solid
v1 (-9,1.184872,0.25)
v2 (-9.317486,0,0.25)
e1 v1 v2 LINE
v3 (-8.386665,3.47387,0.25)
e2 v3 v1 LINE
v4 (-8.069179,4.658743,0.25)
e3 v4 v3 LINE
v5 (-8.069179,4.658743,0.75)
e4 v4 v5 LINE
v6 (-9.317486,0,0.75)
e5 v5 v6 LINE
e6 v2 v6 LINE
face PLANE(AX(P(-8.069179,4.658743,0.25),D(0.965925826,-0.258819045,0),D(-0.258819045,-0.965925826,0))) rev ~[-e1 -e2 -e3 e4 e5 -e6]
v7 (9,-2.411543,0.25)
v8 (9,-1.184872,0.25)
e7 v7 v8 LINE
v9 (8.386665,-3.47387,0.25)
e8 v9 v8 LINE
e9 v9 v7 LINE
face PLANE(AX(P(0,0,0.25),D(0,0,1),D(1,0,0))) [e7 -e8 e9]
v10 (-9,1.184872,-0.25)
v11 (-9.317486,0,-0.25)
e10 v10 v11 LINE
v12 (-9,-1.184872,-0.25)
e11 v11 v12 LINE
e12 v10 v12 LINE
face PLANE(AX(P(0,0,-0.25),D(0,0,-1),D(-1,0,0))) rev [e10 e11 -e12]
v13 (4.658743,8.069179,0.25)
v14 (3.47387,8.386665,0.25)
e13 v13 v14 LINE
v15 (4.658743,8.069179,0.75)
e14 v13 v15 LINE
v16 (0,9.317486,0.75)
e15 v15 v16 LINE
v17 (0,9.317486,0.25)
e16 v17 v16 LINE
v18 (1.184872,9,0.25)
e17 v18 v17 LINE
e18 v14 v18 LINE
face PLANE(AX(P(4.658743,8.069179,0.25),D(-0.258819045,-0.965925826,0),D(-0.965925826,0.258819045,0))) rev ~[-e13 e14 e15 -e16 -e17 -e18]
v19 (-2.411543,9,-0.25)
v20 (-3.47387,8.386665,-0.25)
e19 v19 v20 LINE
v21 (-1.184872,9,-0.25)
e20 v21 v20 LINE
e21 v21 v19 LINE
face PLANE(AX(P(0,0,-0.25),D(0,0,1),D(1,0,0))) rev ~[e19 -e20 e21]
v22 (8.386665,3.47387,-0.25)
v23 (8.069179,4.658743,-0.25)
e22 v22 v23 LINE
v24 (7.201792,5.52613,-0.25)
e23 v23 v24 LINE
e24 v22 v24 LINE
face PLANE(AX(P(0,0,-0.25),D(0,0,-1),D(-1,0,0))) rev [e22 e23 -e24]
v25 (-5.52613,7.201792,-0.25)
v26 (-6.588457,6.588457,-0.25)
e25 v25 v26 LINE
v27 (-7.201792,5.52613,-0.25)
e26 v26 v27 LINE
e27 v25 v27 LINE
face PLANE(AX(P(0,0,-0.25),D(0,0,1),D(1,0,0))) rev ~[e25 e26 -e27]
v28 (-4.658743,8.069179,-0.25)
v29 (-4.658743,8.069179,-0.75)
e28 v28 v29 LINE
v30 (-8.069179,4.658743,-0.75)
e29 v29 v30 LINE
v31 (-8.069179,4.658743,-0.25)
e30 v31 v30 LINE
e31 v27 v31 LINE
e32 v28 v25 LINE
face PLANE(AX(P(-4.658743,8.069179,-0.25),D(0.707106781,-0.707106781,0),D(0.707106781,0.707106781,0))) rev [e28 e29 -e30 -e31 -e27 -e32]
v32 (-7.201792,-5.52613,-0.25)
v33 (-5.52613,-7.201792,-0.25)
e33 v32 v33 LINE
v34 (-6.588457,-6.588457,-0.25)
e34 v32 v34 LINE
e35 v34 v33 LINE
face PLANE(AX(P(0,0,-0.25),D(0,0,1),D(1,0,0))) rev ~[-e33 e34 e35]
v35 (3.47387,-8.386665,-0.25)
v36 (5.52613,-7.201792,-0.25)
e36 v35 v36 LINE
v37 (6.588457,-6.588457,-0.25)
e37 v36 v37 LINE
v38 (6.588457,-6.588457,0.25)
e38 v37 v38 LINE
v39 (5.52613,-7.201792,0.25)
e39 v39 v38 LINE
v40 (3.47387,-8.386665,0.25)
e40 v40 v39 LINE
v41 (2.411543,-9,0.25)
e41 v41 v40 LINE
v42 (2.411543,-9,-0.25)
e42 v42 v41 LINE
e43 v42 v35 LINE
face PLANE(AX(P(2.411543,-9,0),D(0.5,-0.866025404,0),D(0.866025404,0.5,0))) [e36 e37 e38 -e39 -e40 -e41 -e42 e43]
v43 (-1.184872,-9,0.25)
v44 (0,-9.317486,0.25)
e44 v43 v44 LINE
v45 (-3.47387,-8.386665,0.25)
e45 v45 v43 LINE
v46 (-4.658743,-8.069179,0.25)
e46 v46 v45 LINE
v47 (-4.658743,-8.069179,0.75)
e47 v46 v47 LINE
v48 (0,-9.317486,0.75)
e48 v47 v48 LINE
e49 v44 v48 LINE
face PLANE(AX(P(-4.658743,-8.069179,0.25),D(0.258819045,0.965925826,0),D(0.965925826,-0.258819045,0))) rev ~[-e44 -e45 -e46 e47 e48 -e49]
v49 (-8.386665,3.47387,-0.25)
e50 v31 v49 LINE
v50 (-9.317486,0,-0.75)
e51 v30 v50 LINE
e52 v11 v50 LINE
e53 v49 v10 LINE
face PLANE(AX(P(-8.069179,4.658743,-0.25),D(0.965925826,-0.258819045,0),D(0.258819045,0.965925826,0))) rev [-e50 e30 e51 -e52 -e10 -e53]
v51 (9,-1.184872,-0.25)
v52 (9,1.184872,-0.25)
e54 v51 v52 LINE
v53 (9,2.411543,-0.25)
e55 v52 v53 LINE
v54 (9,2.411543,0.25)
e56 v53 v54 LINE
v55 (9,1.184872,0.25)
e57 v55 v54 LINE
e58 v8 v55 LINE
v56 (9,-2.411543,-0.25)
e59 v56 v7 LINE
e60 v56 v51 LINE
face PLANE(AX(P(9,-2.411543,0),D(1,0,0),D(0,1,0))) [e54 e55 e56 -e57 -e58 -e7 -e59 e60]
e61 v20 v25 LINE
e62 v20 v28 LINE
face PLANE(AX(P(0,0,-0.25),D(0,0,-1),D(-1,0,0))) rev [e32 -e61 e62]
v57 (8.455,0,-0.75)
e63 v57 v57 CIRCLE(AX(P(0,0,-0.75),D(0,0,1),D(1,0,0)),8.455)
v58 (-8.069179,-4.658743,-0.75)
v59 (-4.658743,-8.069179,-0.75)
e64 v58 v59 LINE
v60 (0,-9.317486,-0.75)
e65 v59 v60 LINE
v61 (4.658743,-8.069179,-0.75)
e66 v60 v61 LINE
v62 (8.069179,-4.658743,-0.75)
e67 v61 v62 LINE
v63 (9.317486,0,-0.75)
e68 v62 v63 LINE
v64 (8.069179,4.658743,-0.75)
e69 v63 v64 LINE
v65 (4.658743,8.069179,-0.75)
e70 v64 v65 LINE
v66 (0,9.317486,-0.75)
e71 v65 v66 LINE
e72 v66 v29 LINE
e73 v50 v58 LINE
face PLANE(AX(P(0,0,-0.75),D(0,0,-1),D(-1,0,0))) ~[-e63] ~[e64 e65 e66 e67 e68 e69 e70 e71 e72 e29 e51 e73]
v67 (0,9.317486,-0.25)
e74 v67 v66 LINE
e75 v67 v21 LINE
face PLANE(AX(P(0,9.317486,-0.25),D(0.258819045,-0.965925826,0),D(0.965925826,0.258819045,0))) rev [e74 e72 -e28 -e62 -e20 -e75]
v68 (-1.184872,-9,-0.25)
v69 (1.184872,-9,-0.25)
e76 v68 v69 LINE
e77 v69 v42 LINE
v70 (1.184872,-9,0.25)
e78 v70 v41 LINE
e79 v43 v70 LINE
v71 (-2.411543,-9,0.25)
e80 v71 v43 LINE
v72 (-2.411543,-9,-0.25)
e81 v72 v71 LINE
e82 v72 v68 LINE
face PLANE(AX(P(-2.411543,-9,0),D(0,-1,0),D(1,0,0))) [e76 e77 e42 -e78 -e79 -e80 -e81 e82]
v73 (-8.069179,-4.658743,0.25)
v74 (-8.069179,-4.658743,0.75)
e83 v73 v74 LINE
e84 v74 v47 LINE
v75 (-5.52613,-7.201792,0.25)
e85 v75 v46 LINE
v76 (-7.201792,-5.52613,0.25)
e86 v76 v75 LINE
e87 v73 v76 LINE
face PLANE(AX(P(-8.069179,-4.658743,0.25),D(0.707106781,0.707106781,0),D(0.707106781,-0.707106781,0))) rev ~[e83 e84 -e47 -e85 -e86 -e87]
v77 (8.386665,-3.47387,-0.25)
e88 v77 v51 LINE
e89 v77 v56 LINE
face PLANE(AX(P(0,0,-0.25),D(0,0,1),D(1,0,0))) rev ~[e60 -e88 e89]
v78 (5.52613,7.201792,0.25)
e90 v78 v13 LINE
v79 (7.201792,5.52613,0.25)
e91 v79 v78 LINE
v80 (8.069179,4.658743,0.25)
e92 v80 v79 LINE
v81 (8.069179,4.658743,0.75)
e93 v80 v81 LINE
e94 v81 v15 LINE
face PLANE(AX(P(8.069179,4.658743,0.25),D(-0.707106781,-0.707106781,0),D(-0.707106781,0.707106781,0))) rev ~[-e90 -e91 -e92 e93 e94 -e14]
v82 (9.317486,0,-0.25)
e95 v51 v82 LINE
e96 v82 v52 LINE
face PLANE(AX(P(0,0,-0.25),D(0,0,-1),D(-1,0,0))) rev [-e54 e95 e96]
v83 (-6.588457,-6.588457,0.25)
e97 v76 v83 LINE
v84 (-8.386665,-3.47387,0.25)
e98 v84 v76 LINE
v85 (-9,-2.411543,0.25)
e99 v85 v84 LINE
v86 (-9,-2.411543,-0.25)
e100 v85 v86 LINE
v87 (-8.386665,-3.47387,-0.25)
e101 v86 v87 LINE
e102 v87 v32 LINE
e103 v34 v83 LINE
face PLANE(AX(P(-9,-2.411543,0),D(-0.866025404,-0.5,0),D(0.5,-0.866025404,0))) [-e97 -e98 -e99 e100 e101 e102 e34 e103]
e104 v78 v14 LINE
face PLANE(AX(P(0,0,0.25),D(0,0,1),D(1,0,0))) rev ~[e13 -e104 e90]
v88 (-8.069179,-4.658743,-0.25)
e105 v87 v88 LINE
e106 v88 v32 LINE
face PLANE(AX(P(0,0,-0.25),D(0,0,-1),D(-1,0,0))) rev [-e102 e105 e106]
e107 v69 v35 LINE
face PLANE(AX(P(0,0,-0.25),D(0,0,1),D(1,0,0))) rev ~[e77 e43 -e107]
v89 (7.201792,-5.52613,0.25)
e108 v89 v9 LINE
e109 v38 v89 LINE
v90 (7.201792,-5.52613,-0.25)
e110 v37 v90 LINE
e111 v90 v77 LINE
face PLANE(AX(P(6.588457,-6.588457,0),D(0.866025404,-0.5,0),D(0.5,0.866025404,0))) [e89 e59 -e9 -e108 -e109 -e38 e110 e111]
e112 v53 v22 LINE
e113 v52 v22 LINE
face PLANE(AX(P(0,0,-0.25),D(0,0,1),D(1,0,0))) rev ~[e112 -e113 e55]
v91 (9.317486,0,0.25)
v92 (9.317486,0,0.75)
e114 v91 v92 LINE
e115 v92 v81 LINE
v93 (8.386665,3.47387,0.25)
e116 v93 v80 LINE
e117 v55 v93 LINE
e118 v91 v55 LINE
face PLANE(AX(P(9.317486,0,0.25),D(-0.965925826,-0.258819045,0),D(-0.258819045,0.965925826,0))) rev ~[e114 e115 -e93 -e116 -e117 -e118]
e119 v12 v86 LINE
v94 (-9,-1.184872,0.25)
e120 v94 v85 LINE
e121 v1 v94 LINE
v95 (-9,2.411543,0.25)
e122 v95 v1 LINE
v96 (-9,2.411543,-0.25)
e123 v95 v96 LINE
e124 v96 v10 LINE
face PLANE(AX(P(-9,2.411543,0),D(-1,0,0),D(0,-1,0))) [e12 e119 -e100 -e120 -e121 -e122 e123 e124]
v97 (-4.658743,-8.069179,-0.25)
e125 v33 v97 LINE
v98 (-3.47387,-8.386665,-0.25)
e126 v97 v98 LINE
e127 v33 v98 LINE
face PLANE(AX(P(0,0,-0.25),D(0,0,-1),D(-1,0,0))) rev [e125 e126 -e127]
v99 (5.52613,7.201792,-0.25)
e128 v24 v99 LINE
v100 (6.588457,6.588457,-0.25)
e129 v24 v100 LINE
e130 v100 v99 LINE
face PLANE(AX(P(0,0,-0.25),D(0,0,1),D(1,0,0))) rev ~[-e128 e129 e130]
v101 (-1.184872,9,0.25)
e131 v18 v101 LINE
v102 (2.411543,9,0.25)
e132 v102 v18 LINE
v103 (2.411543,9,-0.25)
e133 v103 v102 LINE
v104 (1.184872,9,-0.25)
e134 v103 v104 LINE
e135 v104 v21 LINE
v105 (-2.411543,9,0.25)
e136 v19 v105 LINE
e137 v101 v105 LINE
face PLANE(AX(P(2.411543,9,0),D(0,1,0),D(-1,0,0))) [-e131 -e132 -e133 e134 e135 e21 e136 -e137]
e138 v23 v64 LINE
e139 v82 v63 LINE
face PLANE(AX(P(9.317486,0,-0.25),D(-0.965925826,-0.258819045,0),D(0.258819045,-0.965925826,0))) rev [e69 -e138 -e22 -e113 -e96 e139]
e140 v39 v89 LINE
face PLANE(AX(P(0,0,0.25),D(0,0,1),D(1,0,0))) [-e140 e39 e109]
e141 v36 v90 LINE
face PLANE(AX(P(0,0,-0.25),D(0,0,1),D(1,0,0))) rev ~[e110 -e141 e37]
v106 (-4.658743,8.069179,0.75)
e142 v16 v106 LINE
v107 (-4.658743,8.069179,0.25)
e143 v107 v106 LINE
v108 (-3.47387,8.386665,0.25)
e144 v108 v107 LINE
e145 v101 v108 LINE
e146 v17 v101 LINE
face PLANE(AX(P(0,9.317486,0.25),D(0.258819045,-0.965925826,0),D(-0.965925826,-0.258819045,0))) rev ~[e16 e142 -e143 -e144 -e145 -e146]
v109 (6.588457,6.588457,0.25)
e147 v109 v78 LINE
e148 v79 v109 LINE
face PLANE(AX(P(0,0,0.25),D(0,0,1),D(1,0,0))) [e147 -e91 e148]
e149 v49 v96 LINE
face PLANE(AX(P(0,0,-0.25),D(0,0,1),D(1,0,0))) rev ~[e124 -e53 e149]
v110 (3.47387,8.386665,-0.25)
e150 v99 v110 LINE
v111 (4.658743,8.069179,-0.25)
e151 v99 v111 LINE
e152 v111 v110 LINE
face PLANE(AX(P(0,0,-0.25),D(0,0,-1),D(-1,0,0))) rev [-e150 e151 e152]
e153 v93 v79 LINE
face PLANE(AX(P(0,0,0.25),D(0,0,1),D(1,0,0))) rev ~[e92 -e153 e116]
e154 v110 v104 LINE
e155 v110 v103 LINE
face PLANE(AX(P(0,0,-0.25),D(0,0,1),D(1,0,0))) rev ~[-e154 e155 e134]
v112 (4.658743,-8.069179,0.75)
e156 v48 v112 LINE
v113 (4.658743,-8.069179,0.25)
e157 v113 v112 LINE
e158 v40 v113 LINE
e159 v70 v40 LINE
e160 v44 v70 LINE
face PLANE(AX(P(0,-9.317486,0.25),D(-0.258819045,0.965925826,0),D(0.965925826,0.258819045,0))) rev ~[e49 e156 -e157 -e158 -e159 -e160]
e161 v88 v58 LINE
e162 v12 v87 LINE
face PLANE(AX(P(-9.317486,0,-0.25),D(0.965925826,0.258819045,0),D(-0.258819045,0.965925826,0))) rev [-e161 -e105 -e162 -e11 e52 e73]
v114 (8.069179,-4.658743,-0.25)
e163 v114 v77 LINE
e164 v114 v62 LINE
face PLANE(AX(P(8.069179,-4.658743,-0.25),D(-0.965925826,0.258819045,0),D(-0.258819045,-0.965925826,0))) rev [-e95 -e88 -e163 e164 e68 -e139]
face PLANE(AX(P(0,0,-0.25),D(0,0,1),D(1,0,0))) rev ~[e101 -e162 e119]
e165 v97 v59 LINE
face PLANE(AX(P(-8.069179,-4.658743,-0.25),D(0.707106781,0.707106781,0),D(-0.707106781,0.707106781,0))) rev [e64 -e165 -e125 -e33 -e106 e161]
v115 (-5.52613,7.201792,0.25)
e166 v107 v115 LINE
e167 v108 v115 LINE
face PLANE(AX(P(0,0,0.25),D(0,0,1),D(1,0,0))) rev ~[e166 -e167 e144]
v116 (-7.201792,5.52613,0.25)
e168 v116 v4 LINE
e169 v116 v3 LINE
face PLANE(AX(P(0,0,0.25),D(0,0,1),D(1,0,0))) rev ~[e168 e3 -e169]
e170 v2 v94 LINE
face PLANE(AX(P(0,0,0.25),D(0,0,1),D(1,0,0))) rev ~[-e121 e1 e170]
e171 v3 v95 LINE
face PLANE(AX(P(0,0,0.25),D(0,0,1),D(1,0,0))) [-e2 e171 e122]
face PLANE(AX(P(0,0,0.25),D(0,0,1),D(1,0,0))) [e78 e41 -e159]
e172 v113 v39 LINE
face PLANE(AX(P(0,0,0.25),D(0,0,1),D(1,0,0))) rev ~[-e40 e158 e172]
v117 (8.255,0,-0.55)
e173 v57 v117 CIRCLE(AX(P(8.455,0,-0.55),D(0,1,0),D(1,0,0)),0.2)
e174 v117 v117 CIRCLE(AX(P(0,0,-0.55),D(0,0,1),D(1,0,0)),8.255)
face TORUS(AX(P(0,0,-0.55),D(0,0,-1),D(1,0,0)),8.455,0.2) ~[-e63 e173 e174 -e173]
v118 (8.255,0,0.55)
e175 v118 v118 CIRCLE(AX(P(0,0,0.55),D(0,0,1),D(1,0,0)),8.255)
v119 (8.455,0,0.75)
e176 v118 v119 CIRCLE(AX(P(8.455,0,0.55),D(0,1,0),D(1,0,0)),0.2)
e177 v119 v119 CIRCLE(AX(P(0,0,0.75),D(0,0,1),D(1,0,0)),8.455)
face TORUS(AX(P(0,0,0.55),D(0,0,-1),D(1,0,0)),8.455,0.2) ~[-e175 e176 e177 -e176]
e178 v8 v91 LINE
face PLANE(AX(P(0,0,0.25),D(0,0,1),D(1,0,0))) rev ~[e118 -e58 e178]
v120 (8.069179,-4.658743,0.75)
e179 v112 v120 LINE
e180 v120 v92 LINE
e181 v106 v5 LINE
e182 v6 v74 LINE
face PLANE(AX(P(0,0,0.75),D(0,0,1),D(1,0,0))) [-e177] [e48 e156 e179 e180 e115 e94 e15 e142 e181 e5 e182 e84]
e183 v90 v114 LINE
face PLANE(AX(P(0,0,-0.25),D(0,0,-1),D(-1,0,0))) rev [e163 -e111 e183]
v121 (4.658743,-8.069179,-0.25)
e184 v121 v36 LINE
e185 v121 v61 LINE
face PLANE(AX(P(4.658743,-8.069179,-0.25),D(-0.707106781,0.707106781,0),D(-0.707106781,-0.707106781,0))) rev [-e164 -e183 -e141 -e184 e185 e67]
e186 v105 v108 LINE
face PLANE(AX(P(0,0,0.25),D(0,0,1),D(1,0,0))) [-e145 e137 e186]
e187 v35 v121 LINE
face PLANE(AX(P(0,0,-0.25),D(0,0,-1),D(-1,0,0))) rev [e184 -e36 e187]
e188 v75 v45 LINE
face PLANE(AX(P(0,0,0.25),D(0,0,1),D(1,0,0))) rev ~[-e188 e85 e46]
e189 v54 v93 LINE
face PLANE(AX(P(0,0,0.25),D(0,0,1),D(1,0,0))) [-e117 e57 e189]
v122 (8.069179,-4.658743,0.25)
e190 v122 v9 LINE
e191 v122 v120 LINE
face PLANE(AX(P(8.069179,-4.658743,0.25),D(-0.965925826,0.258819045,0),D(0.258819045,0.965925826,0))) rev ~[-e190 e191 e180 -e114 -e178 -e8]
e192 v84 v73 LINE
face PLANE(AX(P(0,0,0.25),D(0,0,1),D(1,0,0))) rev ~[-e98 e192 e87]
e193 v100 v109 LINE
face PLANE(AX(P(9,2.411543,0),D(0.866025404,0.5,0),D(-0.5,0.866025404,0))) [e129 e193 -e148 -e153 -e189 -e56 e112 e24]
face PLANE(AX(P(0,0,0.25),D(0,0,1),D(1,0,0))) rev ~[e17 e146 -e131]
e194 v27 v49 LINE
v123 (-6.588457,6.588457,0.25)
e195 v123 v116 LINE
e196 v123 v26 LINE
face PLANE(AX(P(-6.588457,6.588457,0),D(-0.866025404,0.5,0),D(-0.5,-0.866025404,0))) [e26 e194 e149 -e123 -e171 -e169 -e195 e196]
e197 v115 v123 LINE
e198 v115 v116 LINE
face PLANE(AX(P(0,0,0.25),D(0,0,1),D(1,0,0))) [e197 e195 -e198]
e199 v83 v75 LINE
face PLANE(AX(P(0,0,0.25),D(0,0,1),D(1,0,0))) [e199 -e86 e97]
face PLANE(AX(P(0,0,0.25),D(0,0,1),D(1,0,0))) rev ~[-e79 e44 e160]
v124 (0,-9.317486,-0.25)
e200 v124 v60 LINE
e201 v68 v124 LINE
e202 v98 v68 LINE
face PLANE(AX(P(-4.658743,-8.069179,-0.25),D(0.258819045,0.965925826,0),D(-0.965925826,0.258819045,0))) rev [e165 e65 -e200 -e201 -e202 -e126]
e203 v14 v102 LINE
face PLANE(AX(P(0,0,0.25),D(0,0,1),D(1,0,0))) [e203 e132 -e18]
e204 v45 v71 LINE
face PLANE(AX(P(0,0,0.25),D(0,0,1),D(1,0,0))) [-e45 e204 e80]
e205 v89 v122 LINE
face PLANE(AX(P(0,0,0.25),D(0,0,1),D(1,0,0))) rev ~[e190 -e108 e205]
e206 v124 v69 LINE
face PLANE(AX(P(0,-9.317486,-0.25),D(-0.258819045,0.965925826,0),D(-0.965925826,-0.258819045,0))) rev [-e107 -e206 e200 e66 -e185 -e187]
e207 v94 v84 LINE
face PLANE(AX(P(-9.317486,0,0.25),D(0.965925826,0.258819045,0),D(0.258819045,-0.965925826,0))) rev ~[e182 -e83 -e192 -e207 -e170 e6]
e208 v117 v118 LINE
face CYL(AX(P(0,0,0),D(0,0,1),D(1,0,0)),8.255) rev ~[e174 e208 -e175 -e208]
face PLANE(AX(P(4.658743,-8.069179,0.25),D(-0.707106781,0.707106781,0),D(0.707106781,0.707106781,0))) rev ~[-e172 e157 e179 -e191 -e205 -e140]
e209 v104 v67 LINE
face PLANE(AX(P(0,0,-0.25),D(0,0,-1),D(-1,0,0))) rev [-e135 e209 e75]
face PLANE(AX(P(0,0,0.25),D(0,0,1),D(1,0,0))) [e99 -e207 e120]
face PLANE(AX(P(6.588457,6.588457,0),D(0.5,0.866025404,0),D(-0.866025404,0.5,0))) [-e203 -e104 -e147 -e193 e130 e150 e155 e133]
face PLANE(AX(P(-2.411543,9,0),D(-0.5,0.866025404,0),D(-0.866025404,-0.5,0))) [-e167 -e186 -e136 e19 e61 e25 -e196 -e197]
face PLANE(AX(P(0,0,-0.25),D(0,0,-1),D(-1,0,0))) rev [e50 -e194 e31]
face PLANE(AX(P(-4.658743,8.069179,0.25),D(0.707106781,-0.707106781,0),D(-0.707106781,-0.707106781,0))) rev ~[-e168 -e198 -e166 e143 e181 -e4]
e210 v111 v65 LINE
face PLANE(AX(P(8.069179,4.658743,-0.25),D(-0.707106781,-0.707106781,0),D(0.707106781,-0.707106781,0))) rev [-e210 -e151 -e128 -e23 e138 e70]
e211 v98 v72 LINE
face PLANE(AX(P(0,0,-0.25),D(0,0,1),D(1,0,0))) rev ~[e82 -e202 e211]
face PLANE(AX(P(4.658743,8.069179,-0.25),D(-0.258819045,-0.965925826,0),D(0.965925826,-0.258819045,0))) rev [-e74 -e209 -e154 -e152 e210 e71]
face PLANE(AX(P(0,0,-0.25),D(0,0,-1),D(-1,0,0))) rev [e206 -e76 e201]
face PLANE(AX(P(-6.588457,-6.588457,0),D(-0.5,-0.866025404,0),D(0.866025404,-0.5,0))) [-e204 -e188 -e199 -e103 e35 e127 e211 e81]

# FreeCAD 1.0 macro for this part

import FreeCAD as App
import Part
import Sketcher
from FreeCAD import Vector
Q = App.Units.Quantity


def edges_at(feature, points):
    """Names of the edges that pass closest to the given points."""
    edges = feature.Shape.Edges
    near = lambda p: min(range(len(edges)), key=lambda i: edges[i].distToShape(Part.Vertex(*p))[0])
    return sorted({f"Edge{near(p) + 1}" for p in points})


def add_polygon(sketch, points):
    """Adds a closed chain of lines whose ends are joined by coincident constraints."""
    first, n = sketch.GeometryCount, len(points)
    for a, b in zip(points, points[1:] + points[:1]):
        sketch.addGeometry(Part.LineSegment(App.Vector(*a, 0), App.Vector(*b, 0)), False)
    for i in range(n):
        sketch.addConstraint(Sketcher.Constraint("Coincident", first + i, 2, first + (i + 1) % n, 1))

doc = App.newDocument("Part")
params = doc.addObject("Spreadsheet::Sheet", "Params")
for row, (alias, value) in enumerate([
    ("pad1_length", "0.5 mm"),
    ("pad2_length", "0.5 mm"),
    ("sketch3_diameter", "16.51 mm"),
    ("pocket1_length", "5 mm"),
    ("fillet_radius", "0.2 mm"),
], start=1):
    params.set(f"A{row}", alias)
    params.set(f"B{row}", "=" + value)
    params.setAlias(f"B{row}", alias)

body = doc.addObject("PartDesign::Body", "Body")

sketch1 = doc.addObject("Sketcher::SketchObject", "Sketch")
body.addObject(sketch1)
sketch1.AttachmentSupport = (doc.XY_Plane, [""])
sketch1.MapMode = "FlatFace"
add_polygon(sketch1, [(-9, -2.411543), (-6.588457, -6.588457), (-2.411543, -9), (2.411543, -9), (6.588457, -6.588457), (9, -2.411543), (9, 2.411543), (6.588457, 6.588457), (2.411543, 9), (-2.411543, 9), (-6.588457, 6.588457), (-9, 2.411543)])
sketch1.addConstraint([
    Sketcher.Constraint("Horizontal", 2),
    Sketcher.Constraint("Vertical", 5),
    Sketcher.Constraint("Horizontal", 8),
    Sketcher.Constraint("Vertical", 11),
    Sketcher.Constraint("Symmetric", 0, 2, 6, 2, -1, 1),
    Sketcher.Constraint("Symmetric", 1, 2, 7, 2, -1, 1),
    Sketcher.Constraint("Symmetric", 3, 2, 9, 2, -1, 1),
    Sketcher.Constraint("Symmetric", 4, 2, 10, 2, -1, 1),
    Sketcher.Constraint("Symmetric", 0, 2, 3, 2, -2),
    Sketcher.Constraint("Perpendicular", 0, 3),
    Sketcher.Constraint("Perpendicular", 1, 4),
    Sketcher.Constraint("Perpendicular", 3, 6),
    Sketcher.Constraint("Perpendicular", 6, 9),
    Sketcher.Constraint("Horizontal", 5, 2, 10, 2),
    Sketcher.Constraint("Equal", 8, 5),
    Sketcher.Constraint("Equal", 0, 1),
    Sketcher.Constraint("Angle", 0, Q("-60 deg")),
    Sketcher.Constraint("DistanceY", 1, 2, -1, 1, Q("9 mm")),
    Sketcher.Constraint("DistanceX", 0, 2, 2, 2, Q("9 mm")),
])
pad1 = doc.addObject("PartDesign::Pad", "Pad")
body.addObject(pad1)
pad1.Profile = sketch1
pad1.setExpression("Length", "Params.pad1_length")
pad1.Midplane = True

sketch2 = doc.addObject("Sketcher::SketchObject", "Sketch001")
body.addObject(sketch2)
sketch2.AttachmentSupport = (doc.XY_Plane, [""])
sketch2.MapMode = "FlatFace"
sketch2.AttachmentOffset = App.Placement(Vector(0, 0, 0.25), App.Rotation())
add_polygon(sketch2, [(-8.069179, 4.658743), (-9.317486, 0), (-8.069179, -4.658743), (-4.658743, -8.069179), (0, -9.317486), (4.658743, -8.069179), (8.069179, -4.658743), (9.317486, 0), (8.069179, 4.658743), (4.658743, 8.069179), (0, 9.317486), (-4.658743, 8.069179)])
sketch2.addConstraint([
    Sketcher.Constraint("Symmetric", 0, 2, 6, 2, -1, 1),
    Sketcher.Constraint("Symmetric", 1, 2, 7, 2, -1, 1),
    Sketcher.Constraint("Symmetric", 2, 2, 8, 2, -1, 1),
    Sketcher.Constraint("Symmetric", 3, 2, 9, 2, -1, 1),
    Sketcher.Constraint("Symmetric", 4, 2, 10, 2, -1, 1),
    Sketcher.Constraint("Symmetric", 5, 2, 11, 2, -1, 1),
    Sketcher.Constraint("Symmetric", 2, 2, 4, 2, -2),
    Sketcher.Constraint("Symmetric", 1, 2, 5, 2, -2),
    Sketcher.Constraint("PointOnObject", 0, 2, -1),
    Sketcher.Constraint("PointOnObject", 3, 2, -2),
    Sketcher.Constraint("Perpendicular", 0, 3),
    Sketcher.Constraint("Perpendicular", 2, 5),
    Sketcher.Constraint("Equal", 1, 2),
    Sketcher.Constraint("Equal", 2, 3),
    Sketcher.Constraint("Angle", 0, Q("-105 deg")),
    Sketcher.Constraint("DistanceX", 1, 2, -1, 1, Q("8.069179 mm")),
])
pad2 = doc.addObject("PartDesign::Pad", "Pad001")
body.addObject(pad2)
pad2.Profile = sketch2
pad2.setExpression("Length", "Params.pad2_length")
body2 = doc.addObject("PartDesign::Body", "Body001")
doc.recompute()

body2.BaseFeature = body
doc.recompute()

mirroring = doc.addObject("Part::Mirroring", "Mirroring")
mirroring.Source = body
mirroring.Base = Vector(0, 0, 0)
mirroring.Normal = Vector(0, 0, 1)
body3 = doc.addObject("PartDesign::Body", "Body002")
body3.BaseFeature = mirroring
boolean = doc.addObject("PartDesign::Boolean", "Boolean")
body2.addObject(boolean)
boolean.Type = "Fuse"
boolean.addObjects([body3])
doc.recompute()

sketch3 = doc.addObject("Sketcher::SketchObject", "Sketch002")
body2.addObject(sketch3)
sketch3.AttachmentSupport = (doc.getObject("XY_Plane001"), [""])
sketch3.MapMode = "FlatFace"
sketch3.addGeometry(Part.Circle(Vector(0, 0, 0), Vector(0, 0, 1), 8.255), False)
sketch3.addConstraint([
    Sketcher.Constraint("Coincident", 0, 3, -1, 1),
    Sketcher.Constraint("Diameter", 0, Q("16.51 mm")),
])
sketch3.setExpression("Constraints[1]", "Params.sketch3_diameter")
pocket1 = doc.addObject("PartDesign::Pocket", "Pocket")
body2.addObject(pocket1)
pocket1.Profile = sketch3
pocket1.setExpression("Length", "Params.pocket1_length")
pocket1.Midplane = True
doc.recompute()

fillet = doc.addObject("PartDesign::Fillet", "Fillet")
body2.addObject(fillet)
fillet.Base = (pocket1, edges_at(pocket1, [(-8.255, 0, -0.75), (8.255, 0, 0), (-8.255, 0, 0.75)]))
fillet.setExpression("Radius", "Params.fillet_radius")
mirroring.Visibility = False

doc.recompute()
